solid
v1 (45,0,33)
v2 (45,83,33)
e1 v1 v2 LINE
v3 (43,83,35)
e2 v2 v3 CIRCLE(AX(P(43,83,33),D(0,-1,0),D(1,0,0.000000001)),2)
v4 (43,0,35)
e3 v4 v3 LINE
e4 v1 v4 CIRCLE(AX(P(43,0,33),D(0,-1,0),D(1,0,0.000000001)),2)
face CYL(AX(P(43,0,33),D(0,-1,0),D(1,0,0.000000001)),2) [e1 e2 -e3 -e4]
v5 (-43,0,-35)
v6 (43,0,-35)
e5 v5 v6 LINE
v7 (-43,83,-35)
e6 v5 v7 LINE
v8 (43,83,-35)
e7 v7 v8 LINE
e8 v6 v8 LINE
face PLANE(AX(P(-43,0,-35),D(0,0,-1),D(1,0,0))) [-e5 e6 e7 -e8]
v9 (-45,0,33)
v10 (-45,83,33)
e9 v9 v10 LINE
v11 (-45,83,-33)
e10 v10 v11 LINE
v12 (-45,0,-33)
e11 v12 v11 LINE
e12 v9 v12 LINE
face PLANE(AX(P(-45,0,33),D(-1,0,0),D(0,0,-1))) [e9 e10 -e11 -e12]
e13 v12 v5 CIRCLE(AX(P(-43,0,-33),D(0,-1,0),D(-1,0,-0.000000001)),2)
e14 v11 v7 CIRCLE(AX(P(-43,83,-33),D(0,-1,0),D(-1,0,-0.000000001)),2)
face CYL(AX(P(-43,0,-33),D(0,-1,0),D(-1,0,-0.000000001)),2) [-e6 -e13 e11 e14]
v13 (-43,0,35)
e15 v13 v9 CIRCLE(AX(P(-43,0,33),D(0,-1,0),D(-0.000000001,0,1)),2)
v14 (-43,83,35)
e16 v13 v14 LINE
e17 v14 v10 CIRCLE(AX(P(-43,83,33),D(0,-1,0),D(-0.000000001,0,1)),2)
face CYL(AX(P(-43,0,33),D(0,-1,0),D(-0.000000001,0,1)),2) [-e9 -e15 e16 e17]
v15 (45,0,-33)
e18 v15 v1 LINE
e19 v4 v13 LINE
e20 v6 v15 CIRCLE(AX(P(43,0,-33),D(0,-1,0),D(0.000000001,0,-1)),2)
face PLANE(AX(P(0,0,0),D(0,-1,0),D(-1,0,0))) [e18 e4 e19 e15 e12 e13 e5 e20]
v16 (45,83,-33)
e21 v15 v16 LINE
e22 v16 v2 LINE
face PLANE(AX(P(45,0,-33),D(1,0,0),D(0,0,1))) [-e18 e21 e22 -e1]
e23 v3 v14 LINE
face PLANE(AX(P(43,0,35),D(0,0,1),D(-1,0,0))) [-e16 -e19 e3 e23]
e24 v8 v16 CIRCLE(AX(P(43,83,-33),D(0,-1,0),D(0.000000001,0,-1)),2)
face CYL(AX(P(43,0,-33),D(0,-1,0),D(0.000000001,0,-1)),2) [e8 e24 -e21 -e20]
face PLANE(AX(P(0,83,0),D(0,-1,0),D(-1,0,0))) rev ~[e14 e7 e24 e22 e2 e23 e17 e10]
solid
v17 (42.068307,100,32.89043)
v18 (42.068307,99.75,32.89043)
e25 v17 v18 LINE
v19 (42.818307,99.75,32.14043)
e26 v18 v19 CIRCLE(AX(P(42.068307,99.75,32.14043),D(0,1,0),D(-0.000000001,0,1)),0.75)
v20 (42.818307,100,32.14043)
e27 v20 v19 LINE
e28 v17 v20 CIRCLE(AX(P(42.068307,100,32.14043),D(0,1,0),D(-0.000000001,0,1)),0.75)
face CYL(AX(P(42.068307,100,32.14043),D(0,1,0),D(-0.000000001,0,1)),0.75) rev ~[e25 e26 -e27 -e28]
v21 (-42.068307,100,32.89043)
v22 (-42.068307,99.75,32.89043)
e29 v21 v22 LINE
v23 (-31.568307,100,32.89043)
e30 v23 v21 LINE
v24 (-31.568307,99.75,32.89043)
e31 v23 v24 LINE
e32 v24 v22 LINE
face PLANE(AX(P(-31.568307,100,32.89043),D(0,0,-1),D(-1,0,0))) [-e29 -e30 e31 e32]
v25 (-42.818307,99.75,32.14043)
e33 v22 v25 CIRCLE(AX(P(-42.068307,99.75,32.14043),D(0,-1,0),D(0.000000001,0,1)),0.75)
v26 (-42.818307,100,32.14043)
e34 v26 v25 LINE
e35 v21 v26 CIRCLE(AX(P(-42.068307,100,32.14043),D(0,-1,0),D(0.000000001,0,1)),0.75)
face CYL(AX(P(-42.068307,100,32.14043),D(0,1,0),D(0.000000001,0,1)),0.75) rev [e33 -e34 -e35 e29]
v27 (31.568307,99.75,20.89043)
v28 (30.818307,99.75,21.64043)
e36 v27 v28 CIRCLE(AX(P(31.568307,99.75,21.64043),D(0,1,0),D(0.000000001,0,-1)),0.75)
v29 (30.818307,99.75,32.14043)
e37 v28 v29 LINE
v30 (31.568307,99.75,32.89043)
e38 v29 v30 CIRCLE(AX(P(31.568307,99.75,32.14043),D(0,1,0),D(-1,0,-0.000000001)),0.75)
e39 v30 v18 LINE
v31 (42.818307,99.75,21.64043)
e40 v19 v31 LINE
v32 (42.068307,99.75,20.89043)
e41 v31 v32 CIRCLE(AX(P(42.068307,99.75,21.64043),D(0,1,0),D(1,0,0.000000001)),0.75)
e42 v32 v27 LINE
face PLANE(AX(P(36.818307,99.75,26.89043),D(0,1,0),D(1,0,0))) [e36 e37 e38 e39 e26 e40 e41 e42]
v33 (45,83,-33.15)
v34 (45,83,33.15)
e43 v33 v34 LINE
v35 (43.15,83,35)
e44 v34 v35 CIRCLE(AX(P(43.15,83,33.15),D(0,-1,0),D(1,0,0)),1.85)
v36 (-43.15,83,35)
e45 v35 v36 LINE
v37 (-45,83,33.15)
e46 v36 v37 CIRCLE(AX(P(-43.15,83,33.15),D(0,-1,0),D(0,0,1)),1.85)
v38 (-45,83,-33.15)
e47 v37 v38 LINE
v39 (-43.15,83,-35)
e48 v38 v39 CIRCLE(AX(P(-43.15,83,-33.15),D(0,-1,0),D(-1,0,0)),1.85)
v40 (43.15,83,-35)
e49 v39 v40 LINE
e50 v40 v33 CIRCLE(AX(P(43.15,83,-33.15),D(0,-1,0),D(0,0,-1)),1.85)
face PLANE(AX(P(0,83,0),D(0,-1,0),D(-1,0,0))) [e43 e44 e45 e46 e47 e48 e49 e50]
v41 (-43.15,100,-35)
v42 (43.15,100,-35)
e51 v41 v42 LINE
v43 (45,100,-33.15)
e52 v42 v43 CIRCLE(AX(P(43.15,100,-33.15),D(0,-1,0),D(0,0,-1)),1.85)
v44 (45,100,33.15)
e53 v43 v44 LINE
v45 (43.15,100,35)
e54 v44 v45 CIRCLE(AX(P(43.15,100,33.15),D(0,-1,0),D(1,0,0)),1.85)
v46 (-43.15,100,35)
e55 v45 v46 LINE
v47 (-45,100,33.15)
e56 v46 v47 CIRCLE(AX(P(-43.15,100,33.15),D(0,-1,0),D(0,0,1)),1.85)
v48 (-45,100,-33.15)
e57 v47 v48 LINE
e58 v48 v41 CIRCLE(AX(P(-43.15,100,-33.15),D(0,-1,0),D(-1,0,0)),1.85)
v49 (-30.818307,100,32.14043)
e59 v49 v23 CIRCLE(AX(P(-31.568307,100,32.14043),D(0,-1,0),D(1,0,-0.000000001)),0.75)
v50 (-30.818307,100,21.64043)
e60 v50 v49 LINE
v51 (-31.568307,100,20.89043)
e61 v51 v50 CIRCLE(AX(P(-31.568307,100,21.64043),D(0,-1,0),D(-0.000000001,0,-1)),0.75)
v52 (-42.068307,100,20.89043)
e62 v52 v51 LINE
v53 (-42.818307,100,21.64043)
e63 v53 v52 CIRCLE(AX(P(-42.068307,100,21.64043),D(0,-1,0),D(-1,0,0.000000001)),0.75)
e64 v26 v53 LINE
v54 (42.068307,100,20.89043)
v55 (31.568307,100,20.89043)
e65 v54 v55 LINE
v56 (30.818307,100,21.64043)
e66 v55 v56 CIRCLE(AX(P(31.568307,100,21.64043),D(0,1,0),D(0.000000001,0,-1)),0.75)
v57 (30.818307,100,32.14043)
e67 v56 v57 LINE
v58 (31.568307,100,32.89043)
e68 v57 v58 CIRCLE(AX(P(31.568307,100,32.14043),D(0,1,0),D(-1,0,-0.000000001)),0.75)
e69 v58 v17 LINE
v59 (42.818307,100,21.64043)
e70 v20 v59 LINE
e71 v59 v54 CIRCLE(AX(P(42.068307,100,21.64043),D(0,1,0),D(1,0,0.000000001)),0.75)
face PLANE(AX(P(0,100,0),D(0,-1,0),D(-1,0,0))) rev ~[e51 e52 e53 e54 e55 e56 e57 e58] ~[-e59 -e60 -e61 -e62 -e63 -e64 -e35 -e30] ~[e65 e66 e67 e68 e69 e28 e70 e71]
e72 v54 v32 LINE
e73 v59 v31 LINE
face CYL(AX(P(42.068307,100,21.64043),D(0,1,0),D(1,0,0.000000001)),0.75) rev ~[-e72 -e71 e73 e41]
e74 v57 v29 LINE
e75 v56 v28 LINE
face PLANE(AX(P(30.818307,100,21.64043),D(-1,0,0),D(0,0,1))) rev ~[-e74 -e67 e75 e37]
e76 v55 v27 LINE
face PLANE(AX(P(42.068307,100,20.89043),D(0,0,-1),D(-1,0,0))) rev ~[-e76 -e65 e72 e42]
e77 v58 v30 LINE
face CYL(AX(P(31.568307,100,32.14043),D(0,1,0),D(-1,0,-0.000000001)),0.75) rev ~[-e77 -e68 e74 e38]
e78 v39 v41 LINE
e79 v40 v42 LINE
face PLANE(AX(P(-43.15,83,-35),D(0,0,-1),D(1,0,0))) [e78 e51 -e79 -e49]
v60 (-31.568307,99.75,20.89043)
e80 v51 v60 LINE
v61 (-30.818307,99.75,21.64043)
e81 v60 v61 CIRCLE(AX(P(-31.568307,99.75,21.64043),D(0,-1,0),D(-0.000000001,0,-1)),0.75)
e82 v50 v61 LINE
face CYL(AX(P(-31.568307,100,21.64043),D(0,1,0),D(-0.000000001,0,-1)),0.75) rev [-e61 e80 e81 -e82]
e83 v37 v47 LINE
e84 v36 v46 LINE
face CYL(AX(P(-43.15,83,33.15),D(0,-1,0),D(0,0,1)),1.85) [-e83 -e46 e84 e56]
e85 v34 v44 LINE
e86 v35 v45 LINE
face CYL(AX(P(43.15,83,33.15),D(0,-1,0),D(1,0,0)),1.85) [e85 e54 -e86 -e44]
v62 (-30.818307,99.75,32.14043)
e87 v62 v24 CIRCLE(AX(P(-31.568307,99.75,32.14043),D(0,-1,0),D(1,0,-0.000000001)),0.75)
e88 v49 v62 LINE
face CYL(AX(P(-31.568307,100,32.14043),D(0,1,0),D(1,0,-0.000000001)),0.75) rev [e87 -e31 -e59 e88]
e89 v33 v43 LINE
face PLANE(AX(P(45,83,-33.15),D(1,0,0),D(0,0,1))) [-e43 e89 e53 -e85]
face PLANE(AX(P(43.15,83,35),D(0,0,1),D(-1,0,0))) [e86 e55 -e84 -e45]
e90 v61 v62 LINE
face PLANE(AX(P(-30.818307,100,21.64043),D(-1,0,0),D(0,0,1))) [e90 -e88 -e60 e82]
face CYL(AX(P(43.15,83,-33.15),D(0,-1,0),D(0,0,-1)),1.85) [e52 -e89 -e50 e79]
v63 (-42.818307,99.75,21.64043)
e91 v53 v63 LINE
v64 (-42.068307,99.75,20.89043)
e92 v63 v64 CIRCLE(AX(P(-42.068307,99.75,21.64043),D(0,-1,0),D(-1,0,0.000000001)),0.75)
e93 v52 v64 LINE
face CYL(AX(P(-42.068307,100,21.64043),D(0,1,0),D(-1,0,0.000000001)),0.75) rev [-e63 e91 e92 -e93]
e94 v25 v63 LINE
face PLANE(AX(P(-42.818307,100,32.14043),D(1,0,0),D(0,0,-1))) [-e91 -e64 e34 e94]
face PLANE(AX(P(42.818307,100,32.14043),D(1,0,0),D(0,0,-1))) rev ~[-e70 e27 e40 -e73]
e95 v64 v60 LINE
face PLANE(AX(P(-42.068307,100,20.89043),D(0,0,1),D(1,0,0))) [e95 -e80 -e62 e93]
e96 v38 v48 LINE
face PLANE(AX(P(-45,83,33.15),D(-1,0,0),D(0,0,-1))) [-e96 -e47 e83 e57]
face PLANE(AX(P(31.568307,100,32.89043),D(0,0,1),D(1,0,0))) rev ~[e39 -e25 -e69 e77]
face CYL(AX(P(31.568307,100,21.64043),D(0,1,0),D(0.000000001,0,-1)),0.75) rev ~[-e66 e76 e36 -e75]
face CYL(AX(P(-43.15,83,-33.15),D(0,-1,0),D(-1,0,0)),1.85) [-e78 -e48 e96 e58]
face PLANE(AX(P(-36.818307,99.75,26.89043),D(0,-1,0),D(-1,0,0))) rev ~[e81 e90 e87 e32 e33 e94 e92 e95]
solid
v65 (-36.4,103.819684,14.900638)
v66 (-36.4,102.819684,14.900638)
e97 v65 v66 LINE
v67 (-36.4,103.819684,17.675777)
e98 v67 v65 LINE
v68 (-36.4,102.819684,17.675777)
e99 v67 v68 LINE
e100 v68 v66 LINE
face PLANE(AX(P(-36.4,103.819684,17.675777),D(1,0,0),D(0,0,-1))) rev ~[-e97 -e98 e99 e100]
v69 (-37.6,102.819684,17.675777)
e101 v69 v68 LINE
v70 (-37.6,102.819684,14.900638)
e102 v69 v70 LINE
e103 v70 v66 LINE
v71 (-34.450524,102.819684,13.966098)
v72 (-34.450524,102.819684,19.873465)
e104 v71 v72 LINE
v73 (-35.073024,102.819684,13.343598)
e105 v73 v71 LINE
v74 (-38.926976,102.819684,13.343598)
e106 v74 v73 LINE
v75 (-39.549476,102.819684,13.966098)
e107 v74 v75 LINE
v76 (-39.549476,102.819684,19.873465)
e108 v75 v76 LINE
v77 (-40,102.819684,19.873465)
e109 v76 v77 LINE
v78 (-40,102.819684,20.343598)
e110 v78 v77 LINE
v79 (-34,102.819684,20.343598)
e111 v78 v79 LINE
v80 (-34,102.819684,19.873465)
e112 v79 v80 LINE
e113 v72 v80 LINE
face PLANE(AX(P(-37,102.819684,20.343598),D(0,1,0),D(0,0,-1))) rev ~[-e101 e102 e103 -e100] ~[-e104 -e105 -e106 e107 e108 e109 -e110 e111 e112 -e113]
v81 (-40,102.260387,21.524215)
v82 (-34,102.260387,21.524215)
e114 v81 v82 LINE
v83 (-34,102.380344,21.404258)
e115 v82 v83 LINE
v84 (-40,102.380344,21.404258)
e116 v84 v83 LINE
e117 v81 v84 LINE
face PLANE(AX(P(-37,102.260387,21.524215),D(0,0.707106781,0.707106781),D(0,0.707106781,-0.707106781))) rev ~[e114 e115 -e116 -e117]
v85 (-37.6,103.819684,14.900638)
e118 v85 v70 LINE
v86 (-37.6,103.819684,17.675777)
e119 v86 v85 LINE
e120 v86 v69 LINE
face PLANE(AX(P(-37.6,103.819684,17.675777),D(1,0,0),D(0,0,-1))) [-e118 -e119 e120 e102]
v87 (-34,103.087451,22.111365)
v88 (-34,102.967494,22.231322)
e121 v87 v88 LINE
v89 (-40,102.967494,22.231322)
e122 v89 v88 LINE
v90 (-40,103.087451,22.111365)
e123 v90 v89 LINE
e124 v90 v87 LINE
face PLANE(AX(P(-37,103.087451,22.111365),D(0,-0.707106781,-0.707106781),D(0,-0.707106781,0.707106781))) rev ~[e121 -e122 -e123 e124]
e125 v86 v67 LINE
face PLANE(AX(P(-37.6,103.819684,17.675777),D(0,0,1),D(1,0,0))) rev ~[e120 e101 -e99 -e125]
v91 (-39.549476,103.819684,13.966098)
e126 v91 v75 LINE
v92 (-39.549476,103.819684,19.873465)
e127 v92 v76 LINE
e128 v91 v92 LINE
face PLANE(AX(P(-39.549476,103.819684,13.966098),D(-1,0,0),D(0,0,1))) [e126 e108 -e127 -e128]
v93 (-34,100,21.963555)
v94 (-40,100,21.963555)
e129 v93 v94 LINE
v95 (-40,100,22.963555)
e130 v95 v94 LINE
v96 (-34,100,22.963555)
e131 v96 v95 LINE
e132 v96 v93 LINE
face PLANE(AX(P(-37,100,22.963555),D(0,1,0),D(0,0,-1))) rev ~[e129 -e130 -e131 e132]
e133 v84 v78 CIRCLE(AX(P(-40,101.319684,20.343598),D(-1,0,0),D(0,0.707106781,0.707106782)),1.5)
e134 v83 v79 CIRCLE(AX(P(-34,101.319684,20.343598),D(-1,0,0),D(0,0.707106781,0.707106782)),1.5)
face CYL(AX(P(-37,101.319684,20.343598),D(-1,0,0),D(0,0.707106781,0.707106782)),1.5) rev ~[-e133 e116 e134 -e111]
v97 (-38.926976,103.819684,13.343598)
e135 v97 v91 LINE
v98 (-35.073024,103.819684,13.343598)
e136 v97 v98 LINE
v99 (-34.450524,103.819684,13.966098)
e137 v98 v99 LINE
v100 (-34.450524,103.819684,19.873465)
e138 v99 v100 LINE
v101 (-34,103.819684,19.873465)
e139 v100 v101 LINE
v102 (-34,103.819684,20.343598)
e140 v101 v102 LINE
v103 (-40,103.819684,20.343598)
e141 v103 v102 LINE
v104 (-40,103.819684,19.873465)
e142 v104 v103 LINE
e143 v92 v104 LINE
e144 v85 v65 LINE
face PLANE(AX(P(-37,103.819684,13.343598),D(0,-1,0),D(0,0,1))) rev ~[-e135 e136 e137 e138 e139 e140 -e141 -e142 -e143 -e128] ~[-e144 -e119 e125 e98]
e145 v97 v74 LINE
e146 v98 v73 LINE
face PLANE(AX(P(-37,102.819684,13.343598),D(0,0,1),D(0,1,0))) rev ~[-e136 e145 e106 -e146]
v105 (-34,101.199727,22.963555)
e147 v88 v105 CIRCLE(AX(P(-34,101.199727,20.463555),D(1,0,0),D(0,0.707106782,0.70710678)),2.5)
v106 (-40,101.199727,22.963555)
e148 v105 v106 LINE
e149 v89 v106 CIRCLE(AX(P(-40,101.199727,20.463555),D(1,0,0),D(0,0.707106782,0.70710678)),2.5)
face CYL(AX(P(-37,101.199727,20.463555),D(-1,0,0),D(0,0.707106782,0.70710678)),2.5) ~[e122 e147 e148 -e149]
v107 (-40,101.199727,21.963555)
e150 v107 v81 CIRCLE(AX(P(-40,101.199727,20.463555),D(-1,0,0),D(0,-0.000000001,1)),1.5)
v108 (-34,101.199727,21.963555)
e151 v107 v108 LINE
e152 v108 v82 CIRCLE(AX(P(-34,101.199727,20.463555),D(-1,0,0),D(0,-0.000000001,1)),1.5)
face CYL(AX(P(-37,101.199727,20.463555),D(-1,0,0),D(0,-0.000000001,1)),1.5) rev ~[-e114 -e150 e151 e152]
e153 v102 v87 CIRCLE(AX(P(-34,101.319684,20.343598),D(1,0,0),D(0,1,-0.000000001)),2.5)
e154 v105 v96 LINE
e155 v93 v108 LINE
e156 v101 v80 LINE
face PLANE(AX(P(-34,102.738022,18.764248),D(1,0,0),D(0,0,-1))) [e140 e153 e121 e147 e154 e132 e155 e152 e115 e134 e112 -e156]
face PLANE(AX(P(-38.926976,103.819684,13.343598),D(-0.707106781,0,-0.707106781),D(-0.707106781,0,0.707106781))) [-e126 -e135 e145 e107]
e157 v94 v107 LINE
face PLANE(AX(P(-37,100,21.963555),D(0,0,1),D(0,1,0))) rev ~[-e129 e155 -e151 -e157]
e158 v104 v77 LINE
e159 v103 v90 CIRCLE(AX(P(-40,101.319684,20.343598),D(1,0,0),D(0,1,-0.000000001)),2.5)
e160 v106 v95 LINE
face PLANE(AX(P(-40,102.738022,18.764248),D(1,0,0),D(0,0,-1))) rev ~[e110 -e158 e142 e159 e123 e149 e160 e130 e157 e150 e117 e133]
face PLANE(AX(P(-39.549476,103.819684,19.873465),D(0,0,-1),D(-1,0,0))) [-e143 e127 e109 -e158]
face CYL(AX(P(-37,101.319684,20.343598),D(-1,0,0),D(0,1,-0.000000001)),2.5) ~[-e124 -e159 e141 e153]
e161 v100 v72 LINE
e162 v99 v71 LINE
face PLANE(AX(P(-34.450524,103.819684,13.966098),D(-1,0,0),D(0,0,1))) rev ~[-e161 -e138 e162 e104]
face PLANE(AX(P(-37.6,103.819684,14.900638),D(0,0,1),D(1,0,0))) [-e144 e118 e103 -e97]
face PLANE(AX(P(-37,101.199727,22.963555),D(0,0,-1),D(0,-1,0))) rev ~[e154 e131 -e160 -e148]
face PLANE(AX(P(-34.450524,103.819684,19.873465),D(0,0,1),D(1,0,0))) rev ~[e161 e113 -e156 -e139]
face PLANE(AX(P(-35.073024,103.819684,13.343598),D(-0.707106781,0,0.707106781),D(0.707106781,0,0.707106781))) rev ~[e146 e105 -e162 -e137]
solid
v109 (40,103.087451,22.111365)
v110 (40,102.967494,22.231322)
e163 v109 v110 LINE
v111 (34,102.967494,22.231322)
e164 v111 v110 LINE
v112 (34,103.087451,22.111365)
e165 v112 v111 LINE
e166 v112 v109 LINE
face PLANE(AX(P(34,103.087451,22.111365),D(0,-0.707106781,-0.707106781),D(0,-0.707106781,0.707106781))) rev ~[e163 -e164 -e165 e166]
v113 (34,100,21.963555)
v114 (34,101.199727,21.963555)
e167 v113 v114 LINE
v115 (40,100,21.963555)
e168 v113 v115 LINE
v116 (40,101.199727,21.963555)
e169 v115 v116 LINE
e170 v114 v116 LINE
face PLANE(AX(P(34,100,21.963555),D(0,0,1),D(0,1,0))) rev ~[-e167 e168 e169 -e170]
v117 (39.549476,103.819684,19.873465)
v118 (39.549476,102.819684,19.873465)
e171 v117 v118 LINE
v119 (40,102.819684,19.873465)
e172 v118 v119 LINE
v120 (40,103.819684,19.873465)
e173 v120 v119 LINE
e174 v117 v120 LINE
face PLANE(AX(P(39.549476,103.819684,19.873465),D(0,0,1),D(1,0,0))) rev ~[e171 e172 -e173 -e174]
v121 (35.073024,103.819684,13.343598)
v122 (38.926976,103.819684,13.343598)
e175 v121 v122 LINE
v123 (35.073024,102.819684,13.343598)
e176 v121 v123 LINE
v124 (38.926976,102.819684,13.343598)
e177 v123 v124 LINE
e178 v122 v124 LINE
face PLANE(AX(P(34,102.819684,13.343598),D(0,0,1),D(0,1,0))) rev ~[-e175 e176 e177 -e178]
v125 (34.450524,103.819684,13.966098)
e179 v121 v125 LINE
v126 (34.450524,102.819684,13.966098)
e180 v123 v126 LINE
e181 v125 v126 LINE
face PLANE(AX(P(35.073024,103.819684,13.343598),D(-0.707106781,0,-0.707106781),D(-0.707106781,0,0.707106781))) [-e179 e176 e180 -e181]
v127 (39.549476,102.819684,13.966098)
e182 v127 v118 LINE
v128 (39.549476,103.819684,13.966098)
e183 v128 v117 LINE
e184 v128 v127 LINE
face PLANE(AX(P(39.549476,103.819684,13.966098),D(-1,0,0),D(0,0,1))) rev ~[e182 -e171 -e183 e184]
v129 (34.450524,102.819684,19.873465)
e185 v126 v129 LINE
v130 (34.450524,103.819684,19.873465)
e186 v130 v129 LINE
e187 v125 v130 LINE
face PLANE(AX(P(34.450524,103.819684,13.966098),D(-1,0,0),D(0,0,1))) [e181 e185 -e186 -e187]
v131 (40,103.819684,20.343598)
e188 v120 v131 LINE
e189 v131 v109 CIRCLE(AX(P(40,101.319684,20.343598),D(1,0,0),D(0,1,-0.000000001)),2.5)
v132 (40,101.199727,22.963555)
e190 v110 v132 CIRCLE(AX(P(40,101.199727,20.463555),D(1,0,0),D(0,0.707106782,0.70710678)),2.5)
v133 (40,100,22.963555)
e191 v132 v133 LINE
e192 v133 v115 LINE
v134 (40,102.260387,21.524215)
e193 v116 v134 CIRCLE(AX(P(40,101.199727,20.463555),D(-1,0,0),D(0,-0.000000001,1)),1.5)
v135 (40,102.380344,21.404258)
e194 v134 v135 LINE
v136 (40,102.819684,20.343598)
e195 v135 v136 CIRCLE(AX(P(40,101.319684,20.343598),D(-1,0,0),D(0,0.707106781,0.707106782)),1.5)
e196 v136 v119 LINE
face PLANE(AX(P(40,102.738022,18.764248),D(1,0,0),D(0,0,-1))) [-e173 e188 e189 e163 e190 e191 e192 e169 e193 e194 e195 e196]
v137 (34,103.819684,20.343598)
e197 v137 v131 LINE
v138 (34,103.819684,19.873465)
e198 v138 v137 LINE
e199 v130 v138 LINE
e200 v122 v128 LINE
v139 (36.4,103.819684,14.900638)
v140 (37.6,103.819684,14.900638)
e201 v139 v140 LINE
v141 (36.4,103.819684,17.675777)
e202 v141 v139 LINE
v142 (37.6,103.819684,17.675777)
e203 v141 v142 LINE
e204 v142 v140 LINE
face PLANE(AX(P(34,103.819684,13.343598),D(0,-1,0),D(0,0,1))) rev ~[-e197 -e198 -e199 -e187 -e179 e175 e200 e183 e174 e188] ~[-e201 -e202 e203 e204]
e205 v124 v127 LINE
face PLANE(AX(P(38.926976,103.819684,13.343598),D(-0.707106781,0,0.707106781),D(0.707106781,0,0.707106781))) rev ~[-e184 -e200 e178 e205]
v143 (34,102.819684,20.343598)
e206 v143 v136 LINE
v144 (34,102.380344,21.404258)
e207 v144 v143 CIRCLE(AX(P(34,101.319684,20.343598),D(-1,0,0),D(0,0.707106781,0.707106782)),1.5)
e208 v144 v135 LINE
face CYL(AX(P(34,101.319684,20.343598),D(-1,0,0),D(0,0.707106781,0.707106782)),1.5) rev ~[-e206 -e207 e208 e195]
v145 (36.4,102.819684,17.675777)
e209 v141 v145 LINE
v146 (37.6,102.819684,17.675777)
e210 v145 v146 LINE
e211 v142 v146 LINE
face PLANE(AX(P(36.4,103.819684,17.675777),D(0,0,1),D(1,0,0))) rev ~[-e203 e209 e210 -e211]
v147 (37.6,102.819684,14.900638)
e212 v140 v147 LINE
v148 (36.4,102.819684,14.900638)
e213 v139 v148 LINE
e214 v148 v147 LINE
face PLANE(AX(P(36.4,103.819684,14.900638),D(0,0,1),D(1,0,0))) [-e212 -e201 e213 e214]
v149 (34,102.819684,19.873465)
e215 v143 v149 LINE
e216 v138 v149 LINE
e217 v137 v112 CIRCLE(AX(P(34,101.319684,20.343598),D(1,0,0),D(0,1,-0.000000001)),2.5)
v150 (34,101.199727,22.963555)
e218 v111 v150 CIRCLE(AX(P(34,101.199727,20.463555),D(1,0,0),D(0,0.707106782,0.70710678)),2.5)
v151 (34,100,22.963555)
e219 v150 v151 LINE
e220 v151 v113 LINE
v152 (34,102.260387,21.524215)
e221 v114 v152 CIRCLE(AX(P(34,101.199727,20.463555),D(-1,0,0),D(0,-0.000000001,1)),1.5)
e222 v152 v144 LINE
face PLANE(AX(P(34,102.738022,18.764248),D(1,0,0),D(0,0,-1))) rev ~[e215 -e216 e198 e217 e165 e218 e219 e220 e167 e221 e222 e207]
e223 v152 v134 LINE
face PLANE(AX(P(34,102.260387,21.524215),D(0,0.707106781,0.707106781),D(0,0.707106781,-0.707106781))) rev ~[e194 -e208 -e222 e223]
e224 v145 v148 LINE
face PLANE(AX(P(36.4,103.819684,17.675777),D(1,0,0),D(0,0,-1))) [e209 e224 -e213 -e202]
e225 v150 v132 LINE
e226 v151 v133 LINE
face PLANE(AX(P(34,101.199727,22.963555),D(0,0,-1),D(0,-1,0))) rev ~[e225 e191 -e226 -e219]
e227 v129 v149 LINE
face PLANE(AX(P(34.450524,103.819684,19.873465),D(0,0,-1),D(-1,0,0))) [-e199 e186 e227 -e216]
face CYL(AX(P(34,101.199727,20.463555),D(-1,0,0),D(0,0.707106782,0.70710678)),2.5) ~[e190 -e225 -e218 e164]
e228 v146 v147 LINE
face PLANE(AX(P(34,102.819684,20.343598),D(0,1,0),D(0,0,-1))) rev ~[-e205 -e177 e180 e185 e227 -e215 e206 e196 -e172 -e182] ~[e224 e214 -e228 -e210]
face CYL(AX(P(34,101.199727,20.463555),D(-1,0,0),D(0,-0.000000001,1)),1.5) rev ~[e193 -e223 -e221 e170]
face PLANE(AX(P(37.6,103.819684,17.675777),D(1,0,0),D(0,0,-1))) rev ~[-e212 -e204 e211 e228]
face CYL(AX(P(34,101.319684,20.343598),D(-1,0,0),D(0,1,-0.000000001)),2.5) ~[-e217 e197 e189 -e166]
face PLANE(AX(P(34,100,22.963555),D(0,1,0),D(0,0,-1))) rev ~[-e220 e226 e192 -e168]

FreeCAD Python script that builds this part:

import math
import FreeCAD as App
import Part
import Sketcher

V = App.Vector
Q = App.Units.Quantity

doc = App.newDocument("Part")
params = doc.addObject("Spreadsheet::Sheet", "Params")
for row, (alias, value) in enumerate([
    ("sketch1_radius", "2 mm"),
    ("sketch1_width", "86 mm"),
    ("sketch1_height", "66 mm"),
    ("pad1_length", "83 mm"),
    ("sketch2_radius", "1.85 mm"),
    ("sketch2_width", "86.3 mm"),
    ("sketch2_height", "66.3 mm"),
    ("pad2_length", "17 mm"),
    ("sketch3_radius", "0.75 mm"),
    ("sketch3_width", "10.5 mm"),
    ("pocket1_length", "0.5 mm"),
    ("sketch4_radius", "0.75 mm"),
    ("sketch4_width", "10.5 mm"),
    ("pad3_length", "0.25 mm"),
    ("sketch5_radius", "2.5 mm"),
    ("sketch5_radius2", "1.5 mm"),
    ("sketch5_height", "7 mm"),
    ("pad4_length", "6 mm"),
    ("sketch6_radius", "1.5 mm"),
    ("sketch6_radius2", "2.5 mm"),
    ("sketch6_height", "7 mm"),
    ("pad5_length", "6 mm"),
    ("sketch7_width", "1.2 mm"),
    ("pad6_length", "1 mm"),
], start=1):
    params.set(f"A{row}", alias)
    params.set(f"B{row}", "=" + value)
    params.setAlias(f"B{row}", alias)

body = doc.addObject("PartDesign::Body", "Body")

# Sketch on XZ plane
sketch1 = body.newObject("Sketcher::SketchObject", "Sketch")
sketch1.AttachmentSupport = (doc.getObject("XZ_Plane"), [""])
sketch1.MapMode = "FlatFace"
sketch1.addGeometry(Part.LineSegment(V(43, -35, 0), V(-43, -35, 0)), False)
sketch1.addGeometry(Part.ArcOfCircle(Part.Circle(V(-43, -33, 0), V(0, 0, 1), 2), math.radians(-180), math.radians(-90)), False)
sketch1.addGeometry(Part.LineSegment(V(-45, -33, 0), V(-45, 33, 0)), False)
sketch1.addGeometry(Part.ArcOfCircle(Part.Circle(V(-43, 33, 0), V(0, 0, 1), 2), math.radians(90), math.radians(180)), False)
sketch1.addGeometry(Part.LineSegment(V(-43, 35, 0), V(43, 35, 0)), False)
sketch1.addGeometry(Part.ArcOfCircle(Part.Circle(V(43, 33, 0), V(0, 0, 1), 2), math.radians(0), math.radians(90)), False)
sketch1.addGeometry(Part.LineSegment(V(45, 33, 0), V(45, -33, 0)), False)
sketch1.addGeometry(Part.ArcOfCircle(Part.Circle(V(43, -33, 0), V(0, 0, 1), 2), math.radians(-90), math.radians(0)), False)
sketch1.addConstraint(Sketcher.Constraint("Tangent", 0, 2, 1, 2))
sketch1.addConstraint(Sketcher.Constraint("Tangent", 1, 1, 2, 1))
sketch1.addConstraint(Sketcher.Constraint("Tangent", 2, 2, 3, 2))
sketch1.addConstraint(Sketcher.Constraint("Tangent", 3, 1, 4, 1))
sketch1.addConstraint(Sketcher.Constraint("Tangent", 4, 2, 5, 2))
sketch1.addConstraint(Sketcher.Constraint("Tangent", 5, 1, 6, 1))
sketch1.addConstraint(Sketcher.Constraint("Tangent", 6, 2, 7, 2))
sketch1.addConstraint(Sketcher.Constraint("Tangent", 7, 1, 0, 1))
sketch1.addConstraint(Sketcher.Constraint("Horizontal", 0))
sketch1.addConstraint(Sketcher.Constraint("Vertical", 2))
sketch1.addConstraint(Sketcher.Constraint("Horizontal", 4))
sketch1.addConstraint(Sketcher.Constraint("Vertical", 6))
sketch1.addConstraint(Sketcher.Constraint("Equal", 1, 3))
sketch1.addConstraint(Sketcher.Constraint("Equal", 3, 5))
sketch1.addConstraint(Sketcher.Constraint("Equal", 5, 7))
sketch1.addConstraint(Sketcher.Constraint("Symmetric", 1, 3, 5, 3, -1, 1))
sketch1.addConstraint(Sketcher.Constraint("Radius", 1, 2.0))
sketch1.addConstraint(Sketcher.Constraint("DistanceX", 0, 2, 0, 1, 86.0))
sketch1.addConstraint(Sketcher.Constraint("DistanceY", 2, 1, 2, 2, 66.0))
sketch1.setExpression("Constraints[16]", "Params.sketch1_radius")
sketch1.setExpression("Constraints[17]", "Params.sketch1_width")
sketch1.setExpression("Constraints[18]", "Params.sketch1_height")
pad1 = body.newObject("PartDesign::Pad", "Pad")
pad1.Profile = sketch1
pad1.setExpression("Length", "Params.pad1_length")
pad1.Reversed = True
body2 = doc.addObject("PartDesign::Body", "Body001")

# Sketch on XZ plane
sketch2 = body2.newObject("Sketcher::SketchObject", "Sketch001")
sketch2.AttachmentSupport = (doc.getObject("XZ_Plane001"), [""])
sketch2.MapMode = "FlatFace"
sketch2.AttachmentOffset = App.Placement(V(0, 0, -83), App.Rotation())
sketch2.addGeometry(Part.LineSegment(V(43.1, -35, 0), V(-43.1, -35, 0)), False)
sketch2.addGeometry(Part.ArcOfCircle(Part.Circle(V(-43.1, -33.1, 0), V(0, 0, 1), 1.9), math.radians(-180), math.radians(-90)), False)
sketch2.addGeometry(Part.LineSegment(V(-45, -33.1, 0), V(-45, 33.1, 0)), False)
sketch2.addGeometry(Part.ArcOfCircle(Part.Circle(V(-43.1, 33.1, 0), V(0, 0, 1), 1.9), math.radians(90), math.radians(180)), False)
sketch2.addGeometry(Part.LineSegment(V(-43.1, 35, 0), V(43.1, 35, 0)), False)
sketch2.addGeometry(Part.ArcOfCircle(Part.Circle(V(43.1, 33.1, 0), V(0, 0, 1), 1.9), math.radians(0), math.radians(90)), False)
sketch2.addGeometry(Part.LineSegment(V(45, 33.1, 0), V(45, -33.1, 0)), False)
sketch2.addGeometry(Part.ArcOfCircle(Part.Circle(V(43.1, -33.1, 0), V(0, 0, 1), 1.9), math.radians(-90), math.radians(0)), False)
sketch2.addConstraint(Sketcher.Constraint("Tangent", 0, 2, 1, 2))
sketch2.addConstraint(Sketcher.Constraint("Tangent", 1, 1, 2, 1))
sketch2.addConstraint(Sketcher.Constraint("Tangent", 2, 2, 3, 2))
sketch2.addConstraint(Sketcher.Constraint("Tangent", 3, 1, 4, 1))
sketch2.addConstraint(Sketcher.Constraint("Tangent", 4, 2, 5, 2))
sketch2.addConstraint(Sketcher.Constraint("Tangent", 5, 1, 6, 1))
sketch2.addConstraint(Sketcher.Constraint("Tangent", 6, 2, 7, 2))
sketch2.addConstraint(Sketcher.Constraint("Tangent", 7, 1, 0, 1))
sketch2.addConstraint(Sketcher.Constraint("Horizontal", 0))
sketch2.addConstraint(Sketcher.Constraint("Vertical", 2))
sketch2.addConstraint(Sketcher.Constraint("Horizontal", 4))
sketch2.addConstraint(Sketcher.Constraint("Vertical", 6))
sketch2.addConstraint(Sketcher.Constraint("Equal", 1, 3))
sketch2.addConstraint(Sketcher.Constraint("Equal", 3, 5))
sketch2.addConstraint(Sketcher.Constraint("Equal", 5, 7))
sketch2.addConstraint(Sketcher.Constraint("Symmetric", 1, 3, 5, 3, -1, 1))
sketch2.addConstraint(Sketcher.Constraint("Radius", 1, 1.85))
sketch2.addConstraint(Sketcher.Constraint("DistanceX", 0, 2, 0, 1, 86.3))
sketch2.addConstraint(Sketcher.Constraint("DistanceY", 2, 1, 2, 2, 66.3))
sketch2.setExpression("Constraints[16]", "Params.sketch2_radius")
sketch2.setExpression("Constraints[17]", "Params.sketch2_width")
sketch2.setExpression("Constraints[18]", "Params.sketch2_height")
pad2 = body2.newObject("PartDesign::Pad", "Pad001")
pad2.Profile = sketch2
pad2.setExpression("Length", "Params.pad2_length")
pad2.Reversed = True

# Sketch on XZ plane
sketch3 = body2.newObject("Sketcher::SketchObject", "Sketch002")
sketch3.AttachmentSupport = (doc.getObject("XZ_Plane001"), [""])
sketch3.MapMode = "FlatFace"
sketch3.AttachmentOffset = App.Placement(V(0, 0, -100), App.Rotation())
sketch3.addGeometry(Part.LineSegment(V(-31.6, 20.9, 0), V(-42.1, 20.9, 0)), False)
sketch3.addGeometry(Part.ArcOfCircle(Part.Circle(V(-42.1, 21.6, 0), V(0, 0, 1), 0.8), math.radians(180), math.radians(270)), False)
sketch3.addGeometry(Part.LineSegment(V(-42.8, 21.6, 0), V(-42.8, 32.1, 0)), False)
sketch3.addGeometry(Part.ArcOfCircle(Part.Circle(V(-42.1, 32.1, 0), V(0, 0, 1), 0.8), math.radians(90), math.radians(180)), False)
sketch3.addGeometry(Part.LineSegment(V(-42.1, 32.9, 0), V(-31.6, 32.9, 0)), False)
sketch3.addGeometry(Part.ArcOfCircle(Part.Circle(V(-31.6, 32.1, 0), V(0, 0, 1), 0.8), math.radians(0), math.radians(90)), False)
sketch3.addGeometry(Part.LineSegment(V(-30.8, 32.1, 0), V(-30.8, 21.6, 0)), False)
sketch3.addGeometry(Part.ArcOfCircle(Part.Circle(V(-31.6, 21.6, 0), V(0, 0, 1), 0.8), math.radians(-90), math.radians(0)), False)
sketch3.addGeometry(Part.LineSegment(V(30.8, 21.6, 0), V(30.8, 32.1, 0)), False)
sketch3.addGeometry(Part.ArcOfCircle(Part.Circle(V(31.6, 32.1, 0), V(0, 0, 1), 0.8), math.radians(90), math.radians(180)), False)
sketch3.addGeometry(Part.LineSegment(V(31.6, 32.9, 0), V(42.1, 32.9, 0)), False)
sketch3.addGeometry(Part.ArcOfCircle(Part.Circle(V(42.1, 32.1, 0), V(0, 0, 1), 0.8), math.radians(0), math.radians(90)), False)
sketch3.addGeometry(Part.LineSegment(V(42.8, 32.1, 0), V(42.8, 21.6, 0)), False)
sketch3.addGeometry(Part.ArcOfCircle(Part.Circle(V(42.1, 21.6, 0), V(0, 0, 1), 0.8), math.radians(-90), math.radians(0)), False)
sketch3.addGeometry(Part.LineSegment(V(42.1, 20.9, 0), V(31.6, 20.9, 0)), False)
sketch3.addGeometry(Part.ArcOfCircle(Part.Circle(V(31.6, 21.6, 0), V(0, 0, 1), 0.8), math.radians(180), math.radians(270)), False)
sketch3.addConstraint(Sketcher.Constraint("Tangent", 0, 2, 1, 2))
sketch3.addConstraint(Sketcher.Constraint("Tangent", 1, 1, 2, 1))
sketch3.addConstraint(Sketcher.Constraint("Tangent", 2, 2, 3, 2))
sketch3.addConstraint(Sketcher.Constraint("Tangent", 3, 1, 4, 1))
sketch3.addConstraint(Sketcher.Constraint("Tangent", 4, 2, 5, 2))
sketch3.addConstraint(Sketcher.Constraint("Tangent", 5, 1, 6, 1))
sketch3.addConstraint(Sketcher.Constraint("Tangent", 6, 2, 7, 2))
sketch3.addConstraint(Sketcher.Constraint("Tangent", 7, 1, 0, 1))
sketch3.addConstraint(Sketcher.Constraint("Tangent", 8, 2, 9, 2))
sketch3.addConstraint(Sketcher.Constraint("Tangent", 9, 1, 10, 1))
sketch3.addConstraint(Sketcher.Constraint("Tangent", 10, 2, 11, 2))
sketch3.addConstraint(Sketcher.Constraint("Tangent", 11, 1, 12, 1))
sketch3.addConstraint(Sketcher.Constraint("Tangent", 12, 2, 13, 2))
sketch3.addConstraint(Sketcher.Constraint("Tangent", 13, 1, 14, 1))
sketch3.addConstraint(Sketcher.Constraint("Tangent", 14, 2, 15, 2))
sketch3.addConstraint(Sketcher.Constraint("Tangent", 15, 1, 8, 1))
sketch3.addConstraint(Sketcher.Constraint("Horizontal", 0))
sketch3.addConstraint(Sketcher.Constraint("Vertical", 2))
sketch3.addConstraint(Sketcher.Constraint("Horizontal", 4))
sketch3.addConstraint(Sketcher.Constraint("Vertical", 6))
sketch3.addConstraint(Sketcher.Constraint("Vertical", 8))
sketch3.addConstraint(Sketcher.Constraint("Horizontal", 10))
sketch3.addConstraint(Sketcher.Constraint("Vertical", 12))
sketch3.addConstraint(Sketcher.Constraint("Horizontal", 14))
sketch3.addConstraint(Sketcher.Constraint("Equal", 1, 3))
sketch3.addConstraint(Sketcher.Constraint("Equal", 3, 5))
sketch3.addConstraint(Sketcher.Constraint("Equal", 5, 7))
sketch3.addConstraint(Sketcher.Constraint("Equal", 7, 9))
sketch3.addConstraint(Sketcher.Constraint("Equal", 9, 11))
sketch3.addConstraint(Sketcher.Constraint("Equal", 11, 13))
sketch3.addConstraint(Sketcher.Constraint("Equal", 13, 15))
sketch3.addConstraint(Sketcher.Constraint("Symmetric", 5, 3, 9, 3, -2))
sketch3.addConstraint(Sketcher.Constraint("Symmetric", 1, 3, 13, 3, -2))
sketch3.addConstraint(Sketcher.Constraint("Equal", 14, 2))
sketch3.addConstraint(Sketcher.Constraint("Radius", 1, 0.75))
sketch3.addConstraint(Sketcher.Constraint("DistanceX", 0, 2, 0, 1, 10.5))
sketch3.addConstraint(Sketcher.Constraint("DistanceY", -1, 1, 1, 3, 21.64043))
sketch3.addConstraint(Sketcher.Constraint("DistanceX", 1, 3, -1, 1, 42.068307))
sketch3.setExpression("Constraints[34]", "Params.sketch3_radius")
sketch3.setExpression("Constraints[35]", "Params.sketch3_width")
pocket1 = body2.newObject("PartDesign::Pocket", "Pocket")
pocket1.Profile = sketch3
pocket1.setExpression("Length", "Params.pocket1_length")
pocket1.Reversed = True

# Sketch on XZ plane
sketch4 = body2.newObject("Sketcher::SketchObject", "Sketch003")
sketch4.AttachmentSupport = (doc.getObject("XZ_Plane001"), [""])
sketch4.MapMode = "FlatFace"
sketch4.AttachmentOffset = App.Placement(V(0, 0, -99.5), App.Rotation())
sketch4.addGeometry(Part.LineSegment(V(-31.6, 20.9, 0), V(-42.1, 20.9, 0)), False)
sketch4.addGeometry(Part.ArcOfCircle(Part.Circle(V(-42.1, 21.6, 0), V(0, 0, 1), 0.8), math.radians(180), math.radians(270)), False)
sketch4.addGeometry(Part.LineSegment(V(-42.8, 21.6, 0), V(-42.8, 32.1, 0)), False)
sketch4.addGeometry(Part.ArcOfCircle(Part.Circle(V(-42.1, 32.1, 0), V(0, 0, 1), 0.8), math.radians(90), math.radians(180)), False)
sketch4.addGeometry(Part.LineSegment(V(-42.1, 32.9, 0), V(-31.6, 32.9, 0)), False)
sketch4.addGeometry(Part.ArcOfCircle(Part.Circle(V(-31.6, 32.1, 0), V(0, 0, 1), 0.8), math.radians(0), math.radians(90)), False)
sketch4.addGeometry(Part.LineSegment(V(-30.8, 32.1, 0), V(-30.8, 21.6, 0)), False)
sketch4.addGeometry(Part.ArcOfCircle(Part.Circle(V(-31.6, 21.6, 0), V(0, 0, 1), 0.8), math.radians(-90), math.radians(0)), False)
sketch4.addGeometry(Part.LineSegment(V(30.8, 21.6, 0), V(30.8, 32.1, 0)), False)
sketch4.addGeometry(Part.ArcOfCircle(Part.Circle(V(31.6, 32.1, 0), V(0, 0, 1), 0.8), math.radians(90), math.radians(180)), False)
sketch4.addGeometry(Part.LineSegment(V(31.6, 32.9, 0), V(42.1, 32.9, 0)), False)
sketch4.addGeometry(Part.ArcOfCircle(Part.Circle(V(42.1, 32.1, 0), V(0, 0, 1), 0.8), math.radians(0), math.radians(90)), False)
sketch4.addGeometry(Part.LineSegment(V(42.8, 32.1, 0), V(42.8, 21.6, 0)), False)
sketch4.addGeometry(Part.ArcOfCircle(Part.Circle(V(42.1, 21.6, 0), V(0, 0, 1), 0.8), math.radians(-90), math.radians(0)), False)
sketch4.addGeometry(Part.LineSegment(V(42.1, 20.9, 0), V(31.6, 20.9, 0)), False)
sketch4.addGeometry(Part.ArcOfCircle(Part.Circle(V(31.6, 21.6, 0), V(0, 0, 1), 0.8), math.radians(180), math.radians(270)), False)
sketch4.addConstraint(Sketcher.Constraint("Tangent", 0, 2, 1, 2))
sketch4.addConstraint(Sketcher.Constraint("Tangent", 1, 1, 2, 1))
sketch4.addConstraint(Sketcher.Constraint("Tangent", 2, 2, 3, 2))
sketch4.addConstraint(Sketcher.Constraint("Tangent", 3, 1, 4, 1))
sketch4.addConstraint(Sketcher.Constraint("Tangent", 4, 2, 5, 2))
sketch4.addConstraint(Sketcher.Constraint("Tangent", 5, 1, 6, 1))
sketch4.addConstraint(Sketcher.Constraint("Tangent", 6, 2, 7, 2))
sketch4.addConstraint(Sketcher.Constraint("Tangent", 7, 1, 0, 1))
sketch4.addConstraint(Sketcher.Constraint("Tangent", 8, 2, 9, 2))
sketch4.addConstraint(Sketcher.Constraint("Tangent", 9, 1, 10, 1))
sketch4.addConstraint(Sketcher.Constraint("Tangent", 10, 2, 11, 2))
sketch4.addConstraint(Sketcher.Constraint("Tangent", 11, 1, 12, 1))
sketch4.addConstraint(Sketcher.Constraint("Tangent", 12, 2, 13, 2))
sketch4.addConstraint(Sketcher.Constraint("Tangent", 13, 1, 14, 1))
sketch4.addConstraint(Sketcher.Constraint("Tangent", 14, 2, 15, 2))
sketch4.addConstraint(Sketcher.Constraint("Tangent", 15, 1, 8, 1))
sketch4.addConstraint(Sketcher.Constraint("Horizontal", 0))
sketch4.addConstraint(Sketcher.Constraint("Vertical", 2))
sketch4.addConstraint(Sketcher.Constraint("Horizontal", 4))
sketch4.addConstraint(Sketcher.Constraint("Vertical", 6))
sketch4.addConstraint(Sketcher.Constraint("Vertical", 8))
sketch4.addConstraint(Sketcher.Constraint("Horizontal", 10))
sketch4.addConstraint(Sketcher.Constraint("Vertical", 12))
sketch4.addConstraint(Sketcher.Constraint("Horizontal", 14))
sketch4.addConstraint(Sketcher.Constraint("Equal", 1, 3))
sketch4.addConstraint(Sketcher.Constraint("Equal", 3, 5))
sketch4.addConstraint(Sketcher.Constraint("Equal", 5, 7))
sketch4.addConstraint(Sketcher.Constraint("Equal", 7, 9))
sketch4.addConstraint(Sketcher.Constraint("Equal", 9, 11))
sketch4.addConstraint(Sketcher.Constraint("Equal", 11, 13))
sketch4.addConstraint(Sketcher.Constraint("Equal", 13, 15))
sketch4.addConstraint(Sketcher.Constraint("Symmetric", 5, 3, 9, 3, -2))
sketch4.addConstraint(Sketcher.Constraint("Symmetric", 1, 3, 13, 3, -2))
sketch4.addConstraint(Sketcher.Constraint("Equal", 14, 2))
sketch4.addConstraint(Sketcher.Constraint("Radius", 1, 0.75))
sketch4.addConstraint(Sketcher.Constraint("DistanceX", 0, 2, 0, 1, 10.5))
sketch4.addConstraint(Sketcher.Constraint("DistanceY", -1, 1, 1, 3, 21.64043))
sketch4.addConstraint(Sketcher.Constraint("DistanceX", 1, 3, -1, 1, 42.068307))
sketch4.setExpression("Constraints[34]", "Params.sketch4_radius")
sketch4.setExpression("Constraints[35]", "Params.sketch4_width")
pad3 = body2.newObject("PartDesign::Pad", "Pad002")
pad3.Profile = sketch4
pad3.setExpression("Length", "Params.pad3_length")
pad3.Reversed = True
body3 = doc.addObject("PartDesign::Body", "Body002")

# Sketch on YZ plane
sketch5 = body3.newObject("Sketcher::SketchObject", "Sketch004")
sketch5.AttachmentSupport = (doc.getObject("YZ_Plane002"), [""])
sketch5.MapMode = "FlatFace"
sketch5.AttachmentOffset = App.Placement(V(0, 0, -37), App.Rotation())
sketch5.addGeometry(Part.LineSegment(V(101.2, 21.96, 0), V(100, 21.96, 0)), False)
sketch5.addGeometry(Part.LineSegment(V(100, 21.96, 0), V(100, 22.96, 0)), False)
sketch5.addGeometry(Part.LineSegment(V(100, 22.96, 0), V(101.2, 22.96, 0)), False)
sketch5.addGeometry(Part.ArcOfCircle(Part.Circle(V(101.2, 20.46, 0), V(0, 0, 1), 2.5), math.radians(45), math.radians(90)), False)
sketch5.addGeometry(Part.LineSegment(V(102.97, 22.23, 0), V(103.09, 22.11, 0)), False)
sketch5.addGeometry(Part.ArcOfCircle(Part.Circle(V(101.32, 20.34, 0), V(0, 0, 1), 2.5), math.radians(0), math.radians(45)), False)
sketch5.addGeometry(Part.LineSegment(V(103.82, 20.34, 0), V(103.82, 13.34, 0)), False)
sketch5.addGeometry(Part.LineSegment(V(103.82, 13.34, 0), V(102.82, 13.34, 0)), False)
sketch5.addGeometry(Part.LineSegment(V(102.82, 13.34, 0), V(102.82, 20.34, 0)), False)
sketch5.addGeometry(Part.ArcOfCircle(Part.Circle(V(101.32, 20.34, 0), V(0, 0, 1), 1.5), math.radians(0), math.radians(45)), False)
sketch5.addGeometry(Part.LineSegment(V(102.38, 21.4, 0), V(102.26, 21.52, 0)), False)
sketch5.addGeometry(Part.ArcOfCircle(Part.Circle(V(101.2, 20.46, 0), V(0, 0, 1), 1.5), math.radians(45), math.radians(90)), False)
sketch5.addConstraint(Sketcher.Constraint("Coincident", 0, 2, 1, 1))
sketch5.addConstraint(Sketcher.Constraint("Coincident", 1, 2, 2, 1))
sketch5.addConstraint(Sketcher.Constraint("Tangent", 2, 2, 3, 2))
sketch5.addConstraint(Sketcher.Constraint("Tangent", 3, 1, 4, 1))
sketch5.addConstraint(Sketcher.Constraint("Tangent", 4, 2, 5, 2))
sketch5.addConstraint(Sketcher.Constraint("Tangent", 5, 1, 6, 1))
sketch5.addConstraint(Sketcher.Constraint("Coincident", 6, 2, 7, 1))
sketch5.addConstraint(Sketcher.Constraint("Coincident", 7, 2, 8, 1))
sketch5.addConstraint(Sketcher.Constraint("Tangent", 8, 2, 9, 1))
sketch5.addConstraint(Sketcher.Constraint("Tangent", 9, 2, 10, 1))
sketch5.addConstraint(Sketcher.Constraint("Tangent", 10, 2, 11, 1))
sketch5.addConstraint(Sketcher.Constraint("Tangent", 11, 2, 0, 1))
sketch5.addConstraint(Sketcher.Constraint("Horizontal", 0))
sketch5.addConstraint(Sketcher.Constraint("Vertical", 1))
sketch5.addConstraint(Sketcher.Constraint("Horizontal", 2))
sketch5.addConstraint(Sketcher.Constraint("Vertical", 6))
sketch5.addConstraint(Sketcher.Constraint("Horizontal", 7))
sketch5.addConstraint(Sketcher.Constraint("Vertical", 8))
sketch5.addConstraint(Sketcher.Constraint("Coincident", 9, 3, 5, 3))
sketch5.addConstraint(Sketcher.Constraint("Coincident", 11, 3, 3, 3))
sketch5.addConstraint(Sketcher.Constraint("Equal", 3, 5))
sketch5.addConstraint(Sketcher.Constraint("Equal", 9, 11))
sketch5.addConstraint(Sketcher.Constraint("Radius", 3, 2.5))
sketch5.addConstraint(Sketcher.Constraint("Radius", 9, 1.5))
sketch5.addConstraint(Sketcher.Constraint("DistanceY", 6, 2, 6, 1, 7.0))
sketch5.addConstraint(Sketcher.Constraint("Angle", 4, Q("-45 deg")))
sketch5.addConstraint(Sketcher.Constraint("DistanceX", -1, 1, 0, 2, 100.0))
sketch5.addConstraint(Sketcher.Constraint("DistanceX", 0, 2, 0, 1, 1.199727))
sketch5.addConstraint(Sketcher.Constraint("DistanceY", -1, 1, 3, 1, 22.231322))
sketch5.addConstraint(Sketcher.Constraint("DistanceX", -1, 1, 4, 2, 103.087451))
sketch5.setExpression("Constraints[22]", "Params.sketch5_radius")
sketch5.setExpression("Constraints[23]", "Params.sketch5_radius2")
sketch5.setExpression("Constraints[24]", "Params.sketch5_height")
pad4 = body3.newObject("PartDesign::Pad", "Pad003")
pad4.Profile = sketch5
pad4.setExpression("Length", "Params.pad4_length")
pad4.Midplane = True
body4 = doc.addObject("PartDesign::Body", "Body003")

# Sketch on YZ plane
sketch6 = body4.newObject("Sketcher::SketchObject", "Sketch005")
sketch6.AttachmentSupport = (doc.getObject("YZ_Plane003"), [""])
sketch6.MapMode = "FlatFace"
sketch6.AttachmentOffset = App.Placement(V(0, 0, 34), App.Rotation())
sketch6.addGeometry(Part.LineSegment(V(100, 21.96, 0), V(101.2, 21.96, 0)), False)
sketch6.addGeometry(Part.ArcOfCircle(Part.Circle(V(101.2, 20.46, 0), V(0, 0, 1), 1.5), math.radians(45), math.radians(90)), False)
sketch6.addGeometry(Part.LineSegment(V(102.26, 21.52, 0), V(102.38, 21.4, 0)), False)
sketch6.addGeometry(Part.ArcOfCircle(Part.Circle(V(101.32, 20.34, 0), V(0, 0, 1), 1.5), math.radians(0), math.radians(45)), False)
sketch6.addGeometry(Part.LineSegment(V(102.82, 20.34, 0), V(102.82, 13.34, 0)), False)
sketch6.addGeometry(Part.LineSegment(V(102.82, 13.34, 0), V(103.82, 13.34, 0)), False)
sketch6.addGeometry(Part.LineSegment(V(103.82, 13.34, 0), V(103.82, 20.34, 0)), False)
sketch6.addGeometry(Part.ArcOfCircle(Part.Circle(V(101.32, 20.34, 0), V(0, 0, 1), 2.5), math.radians(0), math.radians(45)), False)
sketch6.addGeometry(Part.LineSegment(V(103.09, 22.11, 0), V(102.97, 22.23, 0)), False)
sketch6.addGeometry(Part.ArcOfCircle(Part.Circle(V(101.2, 20.46, 0), V(0, 0, 1), 2.5), math.radians(45), math.radians(90)), False)
sketch6.addGeometry(Part.LineSegment(V(101.2, 22.96, 0), V(100, 22.96, 0)), False)
sketch6.addGeometry(Part.LineSegment(V(100, 22.96, 0), V(100, 21.96, 0)), False)
sketch6.addConstraint(Sketcher.Constraint("Tangent", 0, 2, 1, 2))
sketch6.addConstraint(Sketcher.Constraint("Tangent", 1, 1, 2, 1))
sketch6.addConstraint(Sketcher.Constraint("Tangent", 2, 2, 3, 2))
sketch6.addConstraint(Sketcher.Constraint("Tangent", 3, 1, 4, 1))
sketch6.addConstraint(Sketcher.Constraint("Coincident", 4, 2, 5, 1))
sketch6.addConstraint(Sketcher.Constraint("Coincident", 5, 2, 6, 1))
sketch6.addConstraint(Sketcher.Constraint("Tangent", 6, 2, 7, 1))
sketch6.addConstraint(Sketcher.Constraint("Tangent", 7, 2, 8, 1))
sketch6.addConstraint(Sketcher.Constraint("Tangent", 8, 2, 9, 1))
sketch6.addConstraint(Sketcher.Constraint("Tangent", 9, 2, 10, 1))
sketch6.addConstraint(Sketcher.Constraint("Coincident", 10, 2, 11, 1))
sketch6.addConstraint(Sketcher.Constraint("Coincident", 11, 2, 0, 1))
sketch6.addConstraint(Sketcher.Constraint("Horizontal", 0))
sketch6.addConstraint(Sketcher.Constraint("Vertical", 4))
sketch6.addConstraint(Sketcher.Constraint("Horizontal", 5))
sketch6.addConstraint(Sketcher.Constraint("Vertical", 6))
sketch6.addConstraint(Sketcher.Constraint("Horizontal", 10))
sketch6.addConstraint(Sketcher.Constraint("Vertical", 11))
sketch6.addConstraint(Sketcher.Constraint("Coincident", 7, 3, 3, 3))
sketch6.addConstraint(Sketcher.Constraint("Coincident", 9, 3, 1, 3))
sketch6.addConstraint(Sketcher.Constraint("Equal", 1, 3))
sketch6.addConstraint(Sketcher.Constraint("Equal", 7, 9))
sketch6.addConstraint(Sketcher.Constraint("Radius", 1, 1.5))
sketch6.addConstraint(Sketcher.Constraint("Radius", 7, 2.5))
sketch6.addConstraint(Sketcher.Constraint("DistanceY", 4, 2, 4, 1, 7.0))
sketch6.addConstraint(Sketcher.Constraint("Angle", 2, Q("-45 deg")))
sketch6.addConstraint(Sketcher.Constraint("DistanceX", -1, 1, 10, 2, 100.0))
sketch6.addConstraint(Sketcher.Constraint("DistanceX", 0, 1, 0, 2, 1.199727))
sketch6.addConstraint(Sketcher.Constraint("DistanceX", -1, 1, 7, 2, 103.087451))
sketch6.addConstraint(Sketcher.Constraint("DistanceY", -1, 1, 8, 2, 22.231322))
sketch6.setExpression("Constraints[22]", "Params.sketch6_radius")
sketch6.setExpression("Constraints[23]", "Params.sketch6_radius2")
sketch6.setExpression("Constraints[24]", "Params.sketch6_height")
pad5 = body4.newObject("PartDesign::Pad", "Pad004")
pad5.Profile = sketch6
pad5.setExpression("Length", "Params.pad5_length")
body5 = doc.addObject("PartDesign::Body", "Body004")
body5.AllowCompound = True

# Sketch on XZ plane
sketch7 = body5.newObject("Sketcher::SketchObject", "Sketch006")
sketch7.AttachmentSupport = (doc.getObject("XZ_Plane004"), [""])
sketch7.MapMode = "FlatFace"
sketch7.AttachmentOffset = App.Placement(V(0, 0, -103.819684), App.Rotation())
sketch7.addGeometry(Part.LineSegment(V(-39.55, 13.97, 0), V(-38.93, 13.34, 0)), False)
sketch7.addGeometry(Part.LineSegment(V(-38.93, 13.34, 0), V(-40, 13.34, 0)), False)
sketch7.addGeometry(Part.LineSegment(V(-40, 13.34, 0), V(-40, 19.87, 0)), False)
sketch7.addGeometry(Part.LineSegment(V(-40, 19.87, 0), V(-39.55, 19.87, 0)), False)
sketch7.addGeometry(Part.LineSegment(V(-39.55, 19.87, 0), V(-39.55, 13.97, 0)), False)
sketch7.addGeometry(Part.LineSegment(V(-34, 13.34, 0), V(-35.07, 13.34, 0)), False)
sketch7.addGeometry(Part.LineSegment(V(-35.07, 13.34, 0), V(-34.45, 13.97, 0)), False)
sketch7.addGeometry(Part.LineSegment(V(-34.45, 13.97, 0), V(-34.45, 19.87, 0)), False)
sketch7.addGeometry(Part.LineSegment(V(-34.45, 19.87, 0), V(-34, 19.87, 0)), False)
sketch7.addGeometry(Part.LineSegment(V(-34, 19.87, 0), V(-34, 13.34, 0)), False)
sketch7.addGeometry(Part.LineSegment(V(-37.6, 14.9, 0), V(-37.6, 17.68, 0)), False)
sketch7.addGeometry(Part.LineSegment(V(-37.6, 17.68, 0), V(-36.4, 17.68, 0)), False)
sketch7.addGeometry(Part.LineSegment(V(-36.4, 17.68, 0), V(-36.4, 14.9, 0)), False)
sketch7.addGeometry(Part.LineSegment(V(-36.4, 14.9, 0), V(-37.6, 14.9, 0)), False)
sketch7.addGeometry(Part.LineSegment(V(36.4, 14.9, 0), V(36.4, 17.68, 0)), False)
sketch7.addGeometry(Part.LineSegment(V(36.4, 17.68, 0), V(37.6, 17.68, 0)), False)
sketch7.addGeometry(Part.LineSegment(V(37.6, 17.68, 0), V(37.6, 14.9, 0)), False)
sketch7.addGeometry(Part.LineSegment(V(37.6, 14.9, 0), V(36.4, 14.9, 0)), False)
sketch7.addGeometry(Part.LineSegment(V(34.45, 13.97, 0), V(35.07, 13.34, 0)), False)
sketch7.addGeometry(Part.LineSegment(V(35.07, 13.34, 0), V(34, 13.34, 0)), False)
sketch7.addGeometry(Part.LineSegment(V(34, 13.34, 0), V(34, 19.87, 0)), False)
sketch7.addGeometry(Part.LineSegment(V(34, 19.87, 0), V(34.45, 19.87, 0)), False)
sketch7.addGeometry(Part.LineSegment(V(34.45, 19.87, 0), V(34.45, 13.97, 0)), False)
sketch7.addGeometry(Part.LineSegment(V(40, 13.34, 0), V(38.93, 13.34, 0)), False)
sketch7.addGeometry(Part.LineSegment(V(38.93, 13.34, 0), V(39.55, 13.97, 0)), False)
sketch7.addGeometry(Part.LineSegment(V(39.55, 13.97, 0), V(39.55, 19.87, 0)), False)
sketch7.addGeometry(Part.LineSegment(V(39.55, 19.87, 0), V(40, 19.87, 0)), False)
sketch7.addGeometry(Part.LineSegment(V(40, 19.87, 0), V(40, 13.34, 0)), False)
sketch7.addConstraint(Sketcher.Constraint("Coincident", 0, 2, 1, 1))
sketch7.addConstraint(Sketcher.Constraint("Coincident", 1, 2, 2, 1))
sketch7.addConstraint(Sketcher.Constraint("Coincident", 2, 2, 3, 1))
sketch7.addConstraint(Sketcher.Constraint("Coincident", 3, 2, 4, 1))
sketch7.addConstraint(Sketcher.Constraint("Coincident", 4, 2, 0, 1))
sketch7.addConstraint(Sketcher.Constraint("Coincident", 5, 2, 6, 1))
sketch7.addConstraint(Sketcher.Constraint("Coincident", 6, 2, 7, 1))
sketch7.addConstraint(Sketcher.Constraint("Coincident", 7, 2, 8, 1))
sketch7.addConstraint(Sketcher.Constraint("Coincident", 8, 2, 9, 1))
sketch7.addConstraint(Sketcher.Constraint("Coincident", 9, 2, 5, 1))
sketch7.addConstraint(Sketcher.Constraint("Coincident", 10, 2, 11, 1))
sketch7.addConstraint(Sketcher.Constraint("Coincident", 11, 2, 12, 1))
sketch7.addConstraint(Sketcher.Constraint("Coincident", 12, 2, 13, 1))
sketch7.addConstraint(Sketcher.Constraint("Coincident", 13, 2, 10, 1))
sketch7.addConstraint(Sketcher.Constraint("Coincident", 14, 2, 15, 1))
sketch7.addConstraint(Sketcher.Constraint("Coincident", 15, 2, 16, 1))
sketch7.addConstraint(Sketcher.Constraint("Coincident", 16, 2, 17, 1))
sketch7.addConstraint(Sketcher.Constraint("Coincident", 17, 2, 14, 1))
sketch7.addConstraint(Sketcher.Constraint("Coincident", 18, 2, 19, 1))
sketch7.addConstraint(Sketcher.Constraint("Coincident", 19, 2, 20, 1))
sketch7.addConstraint(Sketcher.Constraint("Coincident", 20, 2, 21, 1))
sketch7.addConstraint(Sketcher.Constraint("Coincident", 21, 2, 22, 1))
sketch7.addConstraint(Sketcher.Constraint("Coincident", 22, 2, 18, 1))
sketch7.addConstraint(Sketcher.Constraint("Coincident", 23, 2, 24, 1))
sketch7.addConstraint(Sketcher.Constraint("Coincident", 24, 2, 25, 1))
sketch7.addConstraint(Sketcher.Constraint("Coincident", 25, 2, 26, 1))
sketch7.addConstraint(Sketcher.Constraint("Coincident", 26, 2, 27, 1))
sketch7.addConstraint(Sketcher.Constraint("Coincident", 27, 2, 23, 1))
sketch7.addConstraint(Sketcher.Constraint("Horizontal", 1))
sketch7.addConstraint(Sketcher.Constraint("Vertical", 2))
sketch7.addConstraint(Sketcher.Constraint("Horizontal", 3))
sketch7.addConstraint(Sketcher.Constraint("Vertical", 4))
sketch7.addConstraint(Sketcher.Constraint("Horizontal", 5))
sketch7.addConstraint(Sketcher.Constraint("Vertical", 7))
sketch7.addConstraint(Sketcher.Constraint("Horizontal", 8))
sketch7.addConstraint(Sketcher.Constraint("Vertical", 9))
sketch7.addConstraint(Sketcher.Constraint("Vertical", 10))
sketch7.addConstraint(Sketcher.Constraint("Horizontal", 11))
sketch7.addConstraint(Sketcher.Constraint("Vertical", 12))
sketch7.addConstraint(Sketcher.Constraint("Horizontal", 13))
sketch7.addConstraint(Sketcher.Constraint("Vertical", 14))
sketch7.addConstraint(Sketcher.Constraint("Horizontal", 15))
sketch7.addConstraint(Sketcher.Constraint("Vertical", 16))
sketch7.addConstraint(Sketcher.Constraint("Horizontal", 17))
sketch7.addConstraint(Sketcher.Constraint("Horizontal", 19))
sketch7.addConstraint(Sketcher.Constraint("Vertical", 20))
sketch7.addConstraint(Sketcher.Constraint("Horizontal", 21))
sketch7.addConstraint(Sketcher.Constraint("Vertical", 22))
sketch7.addConstraint(Sketcher.Constraint("Horizontal", 23))
sketch7.addConstraint(Sketcher.Constraint("Vertical", 25))
sketch7.addConstraint(Sketcher.Constraint("Horizontal", 26))
sketch7.addConstraint(Sketcher.Constraint("Vertical", 27))
sketch7.addConstraint(Sketcher.Constraint("Symmetric", 11, 2, 14, 2, -2))
sketch7.addConstraint(Sketcher.Constraint("Symmetric", 13, 2, 16, 2, -2))
sketch7.addConstraint(Sketcher.Constraint("Symmetric", 5, 2, 18, 2, -2))
sketch7.addConstraint(Sketcher.Constraint("Symmetric", 8, 2, 20, 2, -2))
sketch7.addConstraint(Sketcher.Constraint("Symmetric", 6, 2, 22, 2, -2))
sketch7.addConstraint(Sketcher.Constraint("Symmetric", 0, 2, 23, 2, -2))
sketch7.addConstraint(Sketcher.Constraint("Symmetric", 4, 2, 24, 2, -2))
sketch7.addConstraint(Sketcher.Constraint("Symmetric", 2, 2, 26, 2, -2))
sketch7.addConstraint(Sketcher.Constraint("Perpendicular", 0, 6))
sketch7.addConstraint(Sketcher.Constraint("Perpendicular", 6, 18))
sketch7.addConstraint(Sketcher.Constraint("Horizontal", 1, 2, 5, 2))
sketch7.addConstraint(Sketcher.Constraint("Horizontal", 4, 2, 6, 2))
sketch7.addConstraint(Sketcher.Constraint("Horizontal", 3, 2, 7, 2))
sketch7.addConstraint(Sketcher.Constraint("Equal", 1, 5))
sketch7.addConstraint(Sketcher.Constraint("DistanceX", 11, 1, 11, 2, 1.2))
sketch7.addConstraint(Sketcher.Constraint("DistanceX", 1, 2, -1, 1, 40.0))
sketch7.addConstraint(Sketcher.Constraint("DistanceX", 8, 2, -1, 1, 34.0))
sketch7.addConstraint(Sketcher.Constraint("DistanceX", 10, 2, -1, 1, 37.6))
sketch7.addConstraint(Sketcher.Constraint("DistanceY", 10, 1, 10, 2, 2.775139))
sketch7.addConstraint(Sketcher.Constraint("DistanceY", -1, 1, 4, 2, 13.966098))
sketch7.addConstraint(Sketcher.Constraint("DistanceX", 3, 2, 0, 2, 0.6225))
sketch7.addConstraint(Sketcher.Constraint("DistanceX", 1, 2, 1, 1, 1.073024))
sketch7.addConstraint(Sketcher.Constraint("DistanceY", 2, 1, 2, 2, 6.529867))
sketch7.addConstraint(Sketcher.Constraint("DistanceY", 10, 2, 3, 2, 2.197688))
sketch7.setExpression("Constraints[66]", "Params.sketch7_width")
pad6 = body5.newObject("PartDesign::Pad", "Pad005")
pad6.Profile = sketch7
pad6.setExpression("Length", "Params.pad6_length")
doc.recompute()

body6 = doc.addObject("PartDesign::Body", "Body005")
body6.BaseFeature = body5
boolean = body3.newObject("PartDesign::Boolean", "Boolean")
boolean.Type = "Cut"
boolean.addObjects([body6])
doc.recompute()

boolean2 = body4.newObject("PartDesign::Boolean", "Boolean001")
boolean2.Type = "Cut"
boolean2.addObjects([body5])

doc.recompute()
